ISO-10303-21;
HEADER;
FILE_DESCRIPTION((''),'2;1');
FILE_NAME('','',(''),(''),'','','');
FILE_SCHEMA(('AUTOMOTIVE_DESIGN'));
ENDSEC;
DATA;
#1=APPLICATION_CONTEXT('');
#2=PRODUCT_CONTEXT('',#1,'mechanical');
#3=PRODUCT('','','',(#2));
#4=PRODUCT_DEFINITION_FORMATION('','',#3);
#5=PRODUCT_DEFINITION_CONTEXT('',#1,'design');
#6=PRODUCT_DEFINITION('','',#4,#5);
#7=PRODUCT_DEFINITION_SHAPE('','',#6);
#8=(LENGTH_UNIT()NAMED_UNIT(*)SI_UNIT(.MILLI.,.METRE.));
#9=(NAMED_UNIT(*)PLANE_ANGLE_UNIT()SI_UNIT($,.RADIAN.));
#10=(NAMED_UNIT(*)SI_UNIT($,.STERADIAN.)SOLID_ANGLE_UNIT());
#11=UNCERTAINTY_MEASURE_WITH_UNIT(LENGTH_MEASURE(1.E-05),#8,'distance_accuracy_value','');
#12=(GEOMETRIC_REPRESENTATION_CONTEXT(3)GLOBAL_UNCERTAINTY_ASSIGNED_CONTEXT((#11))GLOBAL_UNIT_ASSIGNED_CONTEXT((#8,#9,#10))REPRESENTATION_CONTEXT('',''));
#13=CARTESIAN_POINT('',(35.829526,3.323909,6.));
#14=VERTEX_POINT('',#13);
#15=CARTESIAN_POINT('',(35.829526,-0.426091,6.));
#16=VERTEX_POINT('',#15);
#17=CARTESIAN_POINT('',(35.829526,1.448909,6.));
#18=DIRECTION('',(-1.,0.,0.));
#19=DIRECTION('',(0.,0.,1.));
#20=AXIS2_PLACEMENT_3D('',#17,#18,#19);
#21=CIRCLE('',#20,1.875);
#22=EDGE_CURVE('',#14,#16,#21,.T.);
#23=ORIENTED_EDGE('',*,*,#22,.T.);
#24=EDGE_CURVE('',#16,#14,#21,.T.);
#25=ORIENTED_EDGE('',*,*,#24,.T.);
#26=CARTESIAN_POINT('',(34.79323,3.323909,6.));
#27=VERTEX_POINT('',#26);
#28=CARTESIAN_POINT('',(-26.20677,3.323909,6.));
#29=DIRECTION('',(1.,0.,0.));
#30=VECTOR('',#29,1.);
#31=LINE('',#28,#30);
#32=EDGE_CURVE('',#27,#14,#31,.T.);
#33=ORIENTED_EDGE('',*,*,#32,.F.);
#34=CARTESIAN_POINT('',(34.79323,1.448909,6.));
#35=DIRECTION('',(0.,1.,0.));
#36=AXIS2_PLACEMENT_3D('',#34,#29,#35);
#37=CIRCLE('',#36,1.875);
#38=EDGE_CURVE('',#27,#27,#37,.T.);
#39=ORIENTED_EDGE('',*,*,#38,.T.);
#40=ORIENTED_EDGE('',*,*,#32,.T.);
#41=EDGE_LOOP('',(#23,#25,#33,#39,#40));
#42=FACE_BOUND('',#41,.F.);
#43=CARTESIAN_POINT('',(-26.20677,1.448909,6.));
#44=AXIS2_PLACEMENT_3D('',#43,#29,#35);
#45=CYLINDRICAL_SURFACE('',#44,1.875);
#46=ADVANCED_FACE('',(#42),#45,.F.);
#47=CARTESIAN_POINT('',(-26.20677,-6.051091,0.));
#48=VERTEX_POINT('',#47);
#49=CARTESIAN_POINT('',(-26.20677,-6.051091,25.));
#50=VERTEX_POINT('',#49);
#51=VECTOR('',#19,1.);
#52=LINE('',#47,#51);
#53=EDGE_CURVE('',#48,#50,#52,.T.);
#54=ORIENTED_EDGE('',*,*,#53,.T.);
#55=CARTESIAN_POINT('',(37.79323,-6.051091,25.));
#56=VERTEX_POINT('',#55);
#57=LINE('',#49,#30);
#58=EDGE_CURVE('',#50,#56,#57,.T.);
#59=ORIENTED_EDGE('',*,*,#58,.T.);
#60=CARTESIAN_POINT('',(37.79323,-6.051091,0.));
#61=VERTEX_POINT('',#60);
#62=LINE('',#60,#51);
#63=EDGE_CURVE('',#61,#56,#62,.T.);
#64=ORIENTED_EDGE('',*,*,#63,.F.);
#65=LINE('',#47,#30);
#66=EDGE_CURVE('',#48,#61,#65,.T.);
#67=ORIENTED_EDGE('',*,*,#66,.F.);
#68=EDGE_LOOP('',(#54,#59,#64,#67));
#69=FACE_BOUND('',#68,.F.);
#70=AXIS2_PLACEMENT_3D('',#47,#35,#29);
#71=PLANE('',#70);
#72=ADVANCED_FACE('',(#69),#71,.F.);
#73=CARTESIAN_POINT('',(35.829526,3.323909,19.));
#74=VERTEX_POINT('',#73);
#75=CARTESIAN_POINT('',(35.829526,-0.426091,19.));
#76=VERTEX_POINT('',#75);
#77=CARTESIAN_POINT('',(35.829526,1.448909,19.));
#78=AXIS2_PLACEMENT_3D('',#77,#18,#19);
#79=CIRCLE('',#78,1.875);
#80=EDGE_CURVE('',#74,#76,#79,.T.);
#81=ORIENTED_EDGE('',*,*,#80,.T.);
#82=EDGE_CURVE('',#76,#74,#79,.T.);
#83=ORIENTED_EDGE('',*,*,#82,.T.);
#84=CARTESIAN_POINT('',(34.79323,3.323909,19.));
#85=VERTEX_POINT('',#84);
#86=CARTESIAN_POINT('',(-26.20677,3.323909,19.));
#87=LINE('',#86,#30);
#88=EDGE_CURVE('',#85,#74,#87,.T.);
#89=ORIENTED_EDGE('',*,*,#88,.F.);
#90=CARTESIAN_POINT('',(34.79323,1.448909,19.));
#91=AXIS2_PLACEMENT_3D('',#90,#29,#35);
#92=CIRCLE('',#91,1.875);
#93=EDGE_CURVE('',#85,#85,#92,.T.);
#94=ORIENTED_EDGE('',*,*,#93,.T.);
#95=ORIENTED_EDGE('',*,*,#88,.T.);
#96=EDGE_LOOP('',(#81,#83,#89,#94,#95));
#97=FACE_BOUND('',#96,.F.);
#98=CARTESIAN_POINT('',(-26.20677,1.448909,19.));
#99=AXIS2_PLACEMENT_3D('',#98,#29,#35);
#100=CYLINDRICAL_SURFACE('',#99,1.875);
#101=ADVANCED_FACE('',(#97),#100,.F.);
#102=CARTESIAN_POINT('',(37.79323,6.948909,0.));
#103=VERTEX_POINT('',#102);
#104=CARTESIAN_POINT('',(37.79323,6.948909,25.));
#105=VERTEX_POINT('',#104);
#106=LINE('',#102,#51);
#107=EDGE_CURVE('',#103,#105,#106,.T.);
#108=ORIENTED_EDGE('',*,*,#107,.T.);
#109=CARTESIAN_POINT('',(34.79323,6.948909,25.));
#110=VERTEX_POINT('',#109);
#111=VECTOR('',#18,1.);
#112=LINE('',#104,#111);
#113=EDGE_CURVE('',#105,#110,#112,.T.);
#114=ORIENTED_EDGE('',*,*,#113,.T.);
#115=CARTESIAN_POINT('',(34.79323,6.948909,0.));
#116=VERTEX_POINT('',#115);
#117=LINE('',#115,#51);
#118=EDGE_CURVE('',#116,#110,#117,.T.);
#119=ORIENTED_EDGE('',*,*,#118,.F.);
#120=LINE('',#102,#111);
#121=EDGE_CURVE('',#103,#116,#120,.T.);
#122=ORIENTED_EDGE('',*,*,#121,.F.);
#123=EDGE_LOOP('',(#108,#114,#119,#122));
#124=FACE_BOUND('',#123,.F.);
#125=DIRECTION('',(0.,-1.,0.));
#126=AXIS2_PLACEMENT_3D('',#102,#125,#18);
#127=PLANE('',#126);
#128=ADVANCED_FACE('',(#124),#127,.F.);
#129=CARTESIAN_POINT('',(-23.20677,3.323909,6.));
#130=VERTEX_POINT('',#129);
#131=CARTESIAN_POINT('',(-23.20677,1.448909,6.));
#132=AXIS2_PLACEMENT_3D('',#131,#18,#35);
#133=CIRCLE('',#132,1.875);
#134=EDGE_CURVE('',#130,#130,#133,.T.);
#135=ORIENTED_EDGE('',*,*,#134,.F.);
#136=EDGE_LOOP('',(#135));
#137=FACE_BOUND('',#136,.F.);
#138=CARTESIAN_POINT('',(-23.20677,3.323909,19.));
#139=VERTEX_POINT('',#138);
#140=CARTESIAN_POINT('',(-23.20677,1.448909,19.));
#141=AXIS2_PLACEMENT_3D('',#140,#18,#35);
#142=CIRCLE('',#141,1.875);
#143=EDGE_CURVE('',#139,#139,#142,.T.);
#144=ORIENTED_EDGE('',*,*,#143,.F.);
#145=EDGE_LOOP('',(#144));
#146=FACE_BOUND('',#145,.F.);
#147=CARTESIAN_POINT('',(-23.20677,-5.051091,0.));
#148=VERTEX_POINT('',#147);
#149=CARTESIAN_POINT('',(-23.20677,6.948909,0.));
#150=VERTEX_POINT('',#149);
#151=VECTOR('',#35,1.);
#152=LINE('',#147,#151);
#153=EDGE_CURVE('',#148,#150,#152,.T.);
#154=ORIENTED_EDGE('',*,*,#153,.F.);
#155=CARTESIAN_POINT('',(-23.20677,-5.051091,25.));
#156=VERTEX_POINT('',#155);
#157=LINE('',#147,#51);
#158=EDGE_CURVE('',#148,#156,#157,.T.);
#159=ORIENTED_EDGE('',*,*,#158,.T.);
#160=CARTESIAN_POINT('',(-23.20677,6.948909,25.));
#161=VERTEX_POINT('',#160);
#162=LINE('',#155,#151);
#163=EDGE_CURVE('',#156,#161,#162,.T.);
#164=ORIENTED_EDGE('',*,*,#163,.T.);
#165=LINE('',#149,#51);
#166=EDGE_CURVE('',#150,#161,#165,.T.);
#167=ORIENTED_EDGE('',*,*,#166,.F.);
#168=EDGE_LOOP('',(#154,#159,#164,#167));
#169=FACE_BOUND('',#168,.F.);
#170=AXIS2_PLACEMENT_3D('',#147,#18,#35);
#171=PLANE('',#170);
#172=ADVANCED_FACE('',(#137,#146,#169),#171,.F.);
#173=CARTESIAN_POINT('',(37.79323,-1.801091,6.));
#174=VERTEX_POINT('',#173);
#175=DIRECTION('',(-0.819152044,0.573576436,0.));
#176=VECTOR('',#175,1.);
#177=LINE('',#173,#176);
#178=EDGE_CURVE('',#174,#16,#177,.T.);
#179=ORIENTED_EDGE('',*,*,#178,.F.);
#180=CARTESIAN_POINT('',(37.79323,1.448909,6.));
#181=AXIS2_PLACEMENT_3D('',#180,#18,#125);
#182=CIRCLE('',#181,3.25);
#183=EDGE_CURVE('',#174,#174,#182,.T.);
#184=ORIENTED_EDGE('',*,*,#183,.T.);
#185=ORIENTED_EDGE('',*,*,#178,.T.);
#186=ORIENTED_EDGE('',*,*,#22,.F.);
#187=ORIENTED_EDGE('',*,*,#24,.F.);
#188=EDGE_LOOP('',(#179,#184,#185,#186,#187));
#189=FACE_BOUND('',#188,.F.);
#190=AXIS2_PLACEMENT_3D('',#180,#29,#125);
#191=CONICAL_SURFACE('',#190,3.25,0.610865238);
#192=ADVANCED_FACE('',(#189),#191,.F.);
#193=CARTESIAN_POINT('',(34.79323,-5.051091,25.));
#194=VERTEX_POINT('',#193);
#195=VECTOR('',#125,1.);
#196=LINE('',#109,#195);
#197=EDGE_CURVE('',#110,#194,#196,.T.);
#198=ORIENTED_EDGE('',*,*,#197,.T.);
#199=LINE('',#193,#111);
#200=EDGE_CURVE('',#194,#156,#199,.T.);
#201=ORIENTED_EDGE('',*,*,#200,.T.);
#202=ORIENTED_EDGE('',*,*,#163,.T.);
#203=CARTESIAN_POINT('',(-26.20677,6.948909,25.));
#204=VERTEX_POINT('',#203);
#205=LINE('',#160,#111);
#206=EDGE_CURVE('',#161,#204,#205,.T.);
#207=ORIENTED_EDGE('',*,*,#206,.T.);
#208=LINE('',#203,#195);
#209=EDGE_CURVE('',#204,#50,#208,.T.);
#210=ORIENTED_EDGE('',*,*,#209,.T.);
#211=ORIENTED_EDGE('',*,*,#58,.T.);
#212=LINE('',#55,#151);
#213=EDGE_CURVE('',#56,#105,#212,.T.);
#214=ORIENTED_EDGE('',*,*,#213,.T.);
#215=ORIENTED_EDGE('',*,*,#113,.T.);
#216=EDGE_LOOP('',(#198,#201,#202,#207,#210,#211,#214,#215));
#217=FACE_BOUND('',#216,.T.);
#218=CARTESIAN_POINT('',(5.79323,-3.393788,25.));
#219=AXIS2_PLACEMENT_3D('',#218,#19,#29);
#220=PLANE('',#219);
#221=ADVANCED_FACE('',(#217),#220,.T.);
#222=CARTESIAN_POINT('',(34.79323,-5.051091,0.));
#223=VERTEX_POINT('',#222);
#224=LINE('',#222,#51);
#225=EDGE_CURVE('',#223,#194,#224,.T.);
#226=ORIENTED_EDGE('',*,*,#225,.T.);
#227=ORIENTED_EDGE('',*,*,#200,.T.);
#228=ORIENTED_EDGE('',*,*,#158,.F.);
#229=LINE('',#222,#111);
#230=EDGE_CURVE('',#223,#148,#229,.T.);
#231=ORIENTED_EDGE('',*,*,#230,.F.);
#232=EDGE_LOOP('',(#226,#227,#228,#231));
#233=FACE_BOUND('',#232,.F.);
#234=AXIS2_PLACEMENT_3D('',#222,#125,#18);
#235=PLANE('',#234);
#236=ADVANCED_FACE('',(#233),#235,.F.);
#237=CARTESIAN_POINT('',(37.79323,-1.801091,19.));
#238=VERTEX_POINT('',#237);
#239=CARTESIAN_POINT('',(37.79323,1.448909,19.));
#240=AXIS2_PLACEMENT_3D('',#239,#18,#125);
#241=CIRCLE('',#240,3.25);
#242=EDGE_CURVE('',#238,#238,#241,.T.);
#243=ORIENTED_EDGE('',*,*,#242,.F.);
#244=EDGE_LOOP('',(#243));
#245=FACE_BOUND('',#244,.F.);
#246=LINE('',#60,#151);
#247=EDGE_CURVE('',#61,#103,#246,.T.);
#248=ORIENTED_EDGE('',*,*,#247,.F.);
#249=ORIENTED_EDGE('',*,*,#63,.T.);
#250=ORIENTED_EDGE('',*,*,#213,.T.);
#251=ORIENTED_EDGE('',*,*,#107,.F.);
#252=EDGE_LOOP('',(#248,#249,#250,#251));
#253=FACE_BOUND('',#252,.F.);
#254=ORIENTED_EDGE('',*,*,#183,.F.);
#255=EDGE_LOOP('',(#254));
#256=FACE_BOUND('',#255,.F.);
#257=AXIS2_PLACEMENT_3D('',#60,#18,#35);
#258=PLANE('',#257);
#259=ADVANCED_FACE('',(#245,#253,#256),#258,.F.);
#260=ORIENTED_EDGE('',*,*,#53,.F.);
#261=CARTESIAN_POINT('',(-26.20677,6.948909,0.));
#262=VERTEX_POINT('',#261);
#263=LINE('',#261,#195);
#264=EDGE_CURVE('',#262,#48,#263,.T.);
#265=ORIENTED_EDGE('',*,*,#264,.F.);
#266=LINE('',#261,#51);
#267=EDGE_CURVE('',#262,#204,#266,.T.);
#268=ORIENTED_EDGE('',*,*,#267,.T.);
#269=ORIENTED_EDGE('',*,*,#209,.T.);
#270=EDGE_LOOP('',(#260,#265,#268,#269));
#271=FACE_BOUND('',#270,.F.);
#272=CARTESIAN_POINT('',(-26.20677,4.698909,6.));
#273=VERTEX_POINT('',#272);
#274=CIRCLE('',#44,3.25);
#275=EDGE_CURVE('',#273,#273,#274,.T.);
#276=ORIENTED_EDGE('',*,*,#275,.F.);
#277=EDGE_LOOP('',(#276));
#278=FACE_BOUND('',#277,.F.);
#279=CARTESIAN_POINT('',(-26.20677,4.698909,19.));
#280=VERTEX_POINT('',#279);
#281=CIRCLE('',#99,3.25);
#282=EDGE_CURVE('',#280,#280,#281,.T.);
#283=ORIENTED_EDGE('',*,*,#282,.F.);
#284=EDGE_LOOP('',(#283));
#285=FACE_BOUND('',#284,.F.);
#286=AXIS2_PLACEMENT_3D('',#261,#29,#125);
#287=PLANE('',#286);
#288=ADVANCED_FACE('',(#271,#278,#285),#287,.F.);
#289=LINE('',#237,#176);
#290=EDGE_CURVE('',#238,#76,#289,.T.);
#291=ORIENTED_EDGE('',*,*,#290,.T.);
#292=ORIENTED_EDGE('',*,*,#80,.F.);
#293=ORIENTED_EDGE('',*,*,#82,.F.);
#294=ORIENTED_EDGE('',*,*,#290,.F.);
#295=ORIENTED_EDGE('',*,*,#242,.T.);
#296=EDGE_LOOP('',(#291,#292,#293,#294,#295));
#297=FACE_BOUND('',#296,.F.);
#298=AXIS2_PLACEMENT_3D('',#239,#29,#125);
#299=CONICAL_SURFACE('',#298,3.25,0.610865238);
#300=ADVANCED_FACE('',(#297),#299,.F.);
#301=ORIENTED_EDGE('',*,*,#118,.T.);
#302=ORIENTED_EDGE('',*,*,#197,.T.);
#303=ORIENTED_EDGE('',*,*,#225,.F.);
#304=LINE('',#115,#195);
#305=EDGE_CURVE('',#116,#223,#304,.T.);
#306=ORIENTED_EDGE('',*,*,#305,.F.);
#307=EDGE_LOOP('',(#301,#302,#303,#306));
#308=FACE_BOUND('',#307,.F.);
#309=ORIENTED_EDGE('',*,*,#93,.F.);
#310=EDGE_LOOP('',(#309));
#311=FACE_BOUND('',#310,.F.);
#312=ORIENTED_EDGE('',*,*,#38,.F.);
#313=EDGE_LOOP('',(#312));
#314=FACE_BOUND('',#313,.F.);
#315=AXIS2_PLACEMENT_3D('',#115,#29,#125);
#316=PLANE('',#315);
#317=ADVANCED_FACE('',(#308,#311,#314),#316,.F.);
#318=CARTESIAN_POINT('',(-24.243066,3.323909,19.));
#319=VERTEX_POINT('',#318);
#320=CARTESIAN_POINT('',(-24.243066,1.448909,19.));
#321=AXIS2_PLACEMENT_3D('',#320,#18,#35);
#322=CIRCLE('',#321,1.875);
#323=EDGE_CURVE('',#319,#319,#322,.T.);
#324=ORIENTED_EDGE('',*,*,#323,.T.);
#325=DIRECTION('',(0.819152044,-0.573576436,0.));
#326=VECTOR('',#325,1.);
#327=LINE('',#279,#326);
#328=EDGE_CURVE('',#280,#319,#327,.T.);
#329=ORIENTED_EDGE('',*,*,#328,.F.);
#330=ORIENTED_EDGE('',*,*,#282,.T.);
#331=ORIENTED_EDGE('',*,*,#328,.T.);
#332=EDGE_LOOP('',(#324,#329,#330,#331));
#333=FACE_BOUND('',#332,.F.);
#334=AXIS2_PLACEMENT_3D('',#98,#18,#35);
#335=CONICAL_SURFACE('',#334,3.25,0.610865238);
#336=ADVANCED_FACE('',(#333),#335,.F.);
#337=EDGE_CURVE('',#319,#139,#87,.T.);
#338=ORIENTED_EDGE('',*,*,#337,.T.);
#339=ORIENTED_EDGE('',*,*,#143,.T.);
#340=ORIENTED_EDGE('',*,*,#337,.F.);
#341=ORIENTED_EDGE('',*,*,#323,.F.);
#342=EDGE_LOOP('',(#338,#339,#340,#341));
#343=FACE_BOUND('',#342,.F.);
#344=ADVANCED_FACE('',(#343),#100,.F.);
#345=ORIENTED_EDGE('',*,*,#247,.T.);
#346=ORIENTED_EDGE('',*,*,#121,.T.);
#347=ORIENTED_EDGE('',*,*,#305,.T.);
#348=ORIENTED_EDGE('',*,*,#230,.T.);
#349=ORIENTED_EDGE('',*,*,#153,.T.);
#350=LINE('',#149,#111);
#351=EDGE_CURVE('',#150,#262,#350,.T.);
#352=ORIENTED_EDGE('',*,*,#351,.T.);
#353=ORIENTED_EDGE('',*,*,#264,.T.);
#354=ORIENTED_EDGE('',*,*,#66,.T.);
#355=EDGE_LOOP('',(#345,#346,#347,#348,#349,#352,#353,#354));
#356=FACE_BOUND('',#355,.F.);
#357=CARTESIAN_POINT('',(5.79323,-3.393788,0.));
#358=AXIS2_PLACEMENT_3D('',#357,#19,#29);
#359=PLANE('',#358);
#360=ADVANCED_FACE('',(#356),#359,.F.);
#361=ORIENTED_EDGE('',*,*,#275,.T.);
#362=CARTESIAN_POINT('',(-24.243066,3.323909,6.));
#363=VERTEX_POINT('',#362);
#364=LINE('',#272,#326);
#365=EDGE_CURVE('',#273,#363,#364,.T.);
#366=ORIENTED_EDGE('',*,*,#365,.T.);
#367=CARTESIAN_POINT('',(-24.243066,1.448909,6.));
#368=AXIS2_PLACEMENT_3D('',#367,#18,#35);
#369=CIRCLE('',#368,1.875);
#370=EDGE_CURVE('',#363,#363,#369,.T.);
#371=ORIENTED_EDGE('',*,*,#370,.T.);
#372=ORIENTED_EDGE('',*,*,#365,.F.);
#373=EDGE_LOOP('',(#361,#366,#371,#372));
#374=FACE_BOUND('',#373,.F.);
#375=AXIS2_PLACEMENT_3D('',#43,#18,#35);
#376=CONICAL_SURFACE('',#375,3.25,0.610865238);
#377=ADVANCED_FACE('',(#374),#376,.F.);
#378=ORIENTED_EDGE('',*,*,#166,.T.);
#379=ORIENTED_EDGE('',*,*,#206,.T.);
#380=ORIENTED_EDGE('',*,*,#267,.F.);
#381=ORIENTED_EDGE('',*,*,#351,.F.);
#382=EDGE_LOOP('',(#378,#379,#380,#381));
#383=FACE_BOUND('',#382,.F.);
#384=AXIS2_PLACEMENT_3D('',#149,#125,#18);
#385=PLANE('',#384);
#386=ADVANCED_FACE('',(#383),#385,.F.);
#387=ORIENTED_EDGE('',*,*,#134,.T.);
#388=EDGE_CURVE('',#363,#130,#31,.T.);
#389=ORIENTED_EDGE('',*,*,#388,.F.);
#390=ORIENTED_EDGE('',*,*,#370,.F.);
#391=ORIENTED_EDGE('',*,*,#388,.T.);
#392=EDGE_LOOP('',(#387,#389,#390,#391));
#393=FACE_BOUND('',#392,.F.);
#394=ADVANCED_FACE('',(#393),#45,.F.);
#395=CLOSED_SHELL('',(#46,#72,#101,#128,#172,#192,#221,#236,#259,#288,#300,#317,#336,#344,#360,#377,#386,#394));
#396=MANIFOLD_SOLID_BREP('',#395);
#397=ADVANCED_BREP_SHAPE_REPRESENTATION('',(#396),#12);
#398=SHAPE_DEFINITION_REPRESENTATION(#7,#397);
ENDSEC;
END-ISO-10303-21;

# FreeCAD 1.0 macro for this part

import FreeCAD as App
import Part
import Sketcher

V = App.Vector
Q = App.Units.Quantity


def add_polygon(sketch, points):
    """Adds a closed chain of lines whose ends are joined by coincident constraints."""
    first, n = sketch.GeometryCount, len(points)
    for a, b in zip(points, points[1:] + points[:1]):
        sketch.addGeometry(Part.LineSegment(App.Vector(*a, 0), App.Vector(*b, 0)), False)
    for i in range(n):
        sketch.addConstraint(Sketcher.Constraint("Coincident", first + i, 2, first + (i + 1) % n, 1))

doc = App.newDocument("Part")
body = doc.addObject("PartDesign::Body", "Body")

# Sketch on XY plane
sketch1 = body.newObject("Sketcher::SketchObject", "Sketch")
sketch1.AttachmentSupport = (doc.getObject("XY_Plane"), [""])
sketch1.MapMode = "FlatFace"
add_polygon(sketch1, [(-23.20677, 6.948909), (-26.20677, 6.948909), (-26.20677, -6.051091), (37.79323, -6.051091), (37.79323, 6.948909), (34.79323, 6.948909), (34.79323, -5.051091), (-23.20677, -5.051091)])  # lines 0-7
sketch1.addConstraint([
    Sketcher.Constraint("Horizontal", 0),
    Sketcher.Constraint("Vertical", 1),
    Sketcher.Constraint("Horizontal", 2),
    Sketcher.Constraint("Vertical", 3),
    Sketcher.Constraint("Horizontal", 4),
    Sketcher.Constraint("Vertical", 5),
    Sketcher.Constraint("Horizontal", 6),
    Sketcher.Constraint("Vertical", 7),
    Sketcher.Constraint("Horizontal", 0, 2, 3, 2),
    Sketcher.Constraint("Equal", 0, 4),
    Sketcher.Constraint("DistanceX", 0, 2, 0, 1, Q("3 mm")),
    Sketcher.Constraint("DistanceX", 2, 1, 2, 2, Q("64 mm")),
    Sketcher.Constraint("DistanceY", 1, 2, 1, 1, Q("13 mm")),
    Sketcher.Constraint("DistanceY", 5, 2, 5, 1, Q("12 mm")),
    Sketcher.Constraint("DistanceX", 0, 2, -1, 1, Q("26.20677 mm")),
    Sketcher.Constraint("DistanceY", -1, 1, 0, 2, Q("6.948909 mm")),
])
pad1 = body.newObject("PartDesign::Pad", "Pad")
pad1.Profile = sketch1
pad1.Length = 25

# Sketch on YZ plane
sketch2 = body.newObject("Sketcher::SketchObject", "Sketch001")
sketch2.AttachmentSupport = (doc.getObject("YZ_Plane"), [""])
sketch2.MapMode = "FlatFace"
sketch2.AttachmentOffset = App.Placement(V(0, 0, -26.20677), App.Rotation())
sketch2.addGeometry([
    Part.Circle(V(1.448909, 6, 0), V(0, 0, 1), 1.875),
    Part.Circle(V(1.448909, 19, 0), V(0, 0, 1), 1.875),
], False)
sketch2.addConstraint([
    Sketcher.Constraint("Equal", 0, 1),
    Sketcher.Constraint("Vertical", 0, 3, 1, 3),
    Sketcher.Constraint("Diameter", 0, Q("3.75 mm")),
    Sketcher.Constraint("DistanceY", -1, 1, 0, 3, Q("6 mm")),
    Sketcher.Constraint("DistanceY", -1, 1, 1, 3, Q("19 mm")),
    Sketcher.Constraint("DistanceX", -1, 1, 0, 3, Q("1.448909 mm")),
])
doc.recompute()
hole = body.newObject("PartDesign::Hole", "Hole")
hole.Profile = sketch2
hole.ThreadType = "None"
hole.Diameter = 3.75
hole.DepthType = "ThroughAll"
hole.HoleCutType = "Countersink"
hole.HoleCutDiameter = 6.5
hole.HoleCutCountersinkAngle = 70
hole.Reversed = True

# Sketch on YZ plane
sketch3 = body.newObject("Sketcher::SketchObject", "Sketch002")
sketch3.AttachmentSupport = (doc.getObject("YZ_Plane"), [""])
sketch3.MapMode = "FlatFace"
sketch3.AttachmentOffset = App.Placement(V(0, 0, 37.79323), App.Rotation())
sketch3.addGeometry([
    Part.Circle(V(1.448909, 19, 0), V(0, 0, 1), 1.875),
    Part.Circle(V(1.448909, 6, 0), V(0, 0, 1), 1.875),
], False)
sketch3.addConstraint([
    Sketcher.Constraint("Equal", 0, 1),
    Sketcher.Constraint("Vertical", 0, 3, 1, 3),
    Sketcher.Constraint("Diameter", 0, Q("3.75 mm")),
    Sketcher.Constraint("DistanceY", -1, 1, 0, 3, Q("19 mm")),
    Sketcher.Constraint("DistanceY", -1, 1, 1, 3, Q("6 mm")),
    Sketcher.Constraint("DistanceX", -1, 1, 0, 3, Q("1.448909 mm")),
])
doc.recompute()
hole2 = body.newObject("PartDesign::Hole", "Hole001")
hole2.Profile = sketch3
hole2.ThreadType = "None"
hole2.Diameter = 3.75
hole2.DepthType = "ThroughAll"
hole2.HoleCutType = "Countersink"
hole2.HoleCutDiameter = 6.5
hole2.HoleCutCountersinkAngle = 70

doc.recompute()
